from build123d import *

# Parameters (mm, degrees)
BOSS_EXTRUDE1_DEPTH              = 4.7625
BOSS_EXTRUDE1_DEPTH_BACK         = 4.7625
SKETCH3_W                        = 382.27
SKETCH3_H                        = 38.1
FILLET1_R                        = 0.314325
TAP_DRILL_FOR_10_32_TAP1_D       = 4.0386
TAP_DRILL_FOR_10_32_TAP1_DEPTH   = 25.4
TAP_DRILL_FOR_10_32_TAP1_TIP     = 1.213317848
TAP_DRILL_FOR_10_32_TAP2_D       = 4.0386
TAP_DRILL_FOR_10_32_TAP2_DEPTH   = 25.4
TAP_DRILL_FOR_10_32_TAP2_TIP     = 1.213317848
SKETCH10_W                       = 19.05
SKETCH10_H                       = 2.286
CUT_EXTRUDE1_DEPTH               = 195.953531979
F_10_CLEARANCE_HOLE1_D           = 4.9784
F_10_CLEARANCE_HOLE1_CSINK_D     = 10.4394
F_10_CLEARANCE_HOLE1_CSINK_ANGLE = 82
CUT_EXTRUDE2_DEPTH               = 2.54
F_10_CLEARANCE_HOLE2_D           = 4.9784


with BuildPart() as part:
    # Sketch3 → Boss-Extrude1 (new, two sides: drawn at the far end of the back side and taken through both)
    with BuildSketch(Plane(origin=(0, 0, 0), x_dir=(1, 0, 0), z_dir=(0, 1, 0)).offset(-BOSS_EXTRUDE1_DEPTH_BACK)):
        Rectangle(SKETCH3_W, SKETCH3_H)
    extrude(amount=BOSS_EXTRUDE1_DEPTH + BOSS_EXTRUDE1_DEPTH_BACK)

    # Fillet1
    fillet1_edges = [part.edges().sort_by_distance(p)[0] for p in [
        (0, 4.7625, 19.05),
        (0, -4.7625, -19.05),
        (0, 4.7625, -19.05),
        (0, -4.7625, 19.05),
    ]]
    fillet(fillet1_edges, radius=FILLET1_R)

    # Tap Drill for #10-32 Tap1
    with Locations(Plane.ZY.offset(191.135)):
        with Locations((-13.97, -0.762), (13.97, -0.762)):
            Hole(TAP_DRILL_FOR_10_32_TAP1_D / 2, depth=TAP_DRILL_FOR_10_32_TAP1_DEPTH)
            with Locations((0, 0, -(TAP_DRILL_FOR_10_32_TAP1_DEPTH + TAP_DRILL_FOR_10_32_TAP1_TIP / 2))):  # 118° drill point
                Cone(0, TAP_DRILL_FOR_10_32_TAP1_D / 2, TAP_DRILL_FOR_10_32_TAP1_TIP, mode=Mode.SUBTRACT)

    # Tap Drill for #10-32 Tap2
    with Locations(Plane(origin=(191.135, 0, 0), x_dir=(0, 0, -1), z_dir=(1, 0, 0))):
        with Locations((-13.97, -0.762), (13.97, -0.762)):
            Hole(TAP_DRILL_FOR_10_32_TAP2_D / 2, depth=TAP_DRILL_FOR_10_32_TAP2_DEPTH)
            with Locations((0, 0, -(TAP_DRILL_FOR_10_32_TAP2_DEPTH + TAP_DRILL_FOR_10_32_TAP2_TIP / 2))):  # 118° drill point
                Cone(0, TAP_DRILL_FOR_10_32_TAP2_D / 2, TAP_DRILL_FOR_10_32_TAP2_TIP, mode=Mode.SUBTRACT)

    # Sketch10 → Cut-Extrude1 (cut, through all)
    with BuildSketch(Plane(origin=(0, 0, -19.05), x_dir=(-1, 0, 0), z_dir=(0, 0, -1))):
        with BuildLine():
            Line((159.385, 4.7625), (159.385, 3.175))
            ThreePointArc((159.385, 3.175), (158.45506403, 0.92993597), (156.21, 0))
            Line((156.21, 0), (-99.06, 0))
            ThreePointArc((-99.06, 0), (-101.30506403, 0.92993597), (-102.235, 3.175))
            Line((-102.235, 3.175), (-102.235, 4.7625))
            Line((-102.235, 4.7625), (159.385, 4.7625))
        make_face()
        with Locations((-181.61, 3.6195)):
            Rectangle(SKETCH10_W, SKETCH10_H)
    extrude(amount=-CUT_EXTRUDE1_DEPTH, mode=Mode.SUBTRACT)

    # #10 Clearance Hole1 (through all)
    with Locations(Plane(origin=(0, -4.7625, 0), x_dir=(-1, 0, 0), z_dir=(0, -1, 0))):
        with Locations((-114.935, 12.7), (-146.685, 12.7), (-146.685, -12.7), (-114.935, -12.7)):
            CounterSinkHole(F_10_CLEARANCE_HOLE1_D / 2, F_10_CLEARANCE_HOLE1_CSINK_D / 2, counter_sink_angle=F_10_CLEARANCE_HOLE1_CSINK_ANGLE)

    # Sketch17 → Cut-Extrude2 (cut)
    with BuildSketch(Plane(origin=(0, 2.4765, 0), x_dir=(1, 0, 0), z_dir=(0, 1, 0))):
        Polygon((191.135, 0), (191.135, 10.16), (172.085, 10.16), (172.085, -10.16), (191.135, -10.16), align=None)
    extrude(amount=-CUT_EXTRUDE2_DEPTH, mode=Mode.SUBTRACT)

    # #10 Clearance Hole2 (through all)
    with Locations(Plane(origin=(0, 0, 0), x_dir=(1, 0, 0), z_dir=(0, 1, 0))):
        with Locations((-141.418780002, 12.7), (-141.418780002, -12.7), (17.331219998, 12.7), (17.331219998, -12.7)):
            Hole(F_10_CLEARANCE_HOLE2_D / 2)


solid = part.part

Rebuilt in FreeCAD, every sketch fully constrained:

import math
import FreeCAD as App
import Part
import Sketcher

V = App.Vector
Q = App.Units.Quantity


def edges_at(feature, points):
    """Names of the edges that pass closest to the given points."""
    edges = feature.Shape.Edges
    near = lambda p: min(range(len(edges)), key=lambda i: edges[i].distToShape(Part.Vertex(*p))[0])
    return sorted({f"Edge{near(p) + 1}" for p in points})

doc = App.newDocument("Part")
body = doc.addObject("PartDesign::Body", "Body")

# Sketch on XZ plane
sketch1 = body.newObject("Sketcher::SketchObject", "Sketch")
sketch1.AttachmentSupport = (doc.getObject("XZ_Plane"), [""])
sketch1.MapMode = "FlatFace"
sketch1.addGeometry([
    Part.LineSegment(V(-191, -19, 0), V(-191, 19, 0)),
    Part.LineSegment(V(-191, 19, 0), V(191, 19, 0)),
    Part.LineSegment(V(191, 19, 0), V(191, -19, 0)),
    Part.LineSegment(V(191, -19, 0), V(-191, -19, 0)),
], False)
sketch1.addConstraint([
    Sketcher.Constraint("Coincident", 0, 2, 1, 1),
    Sketcher.Constraint("Coincident", 1, 2, 2, 1),
    Sketcher.Constraint("Coincident", 2, 2, 3, 1),
    Sketcher.Constraint("Coincident", 3, 2, 0, 1),
    Sketcher.Constraint("Vertical", 0),
    Sketcher.Constraint("Horizontal", 1),
    Sketcher.Constraint("Vertical", 2),
    Sketcher.Constraint("Horizontal", 3),
    Sketcher.Constraint("Symmetric", 0, 2, 2, 2, -1, 1),
    Sketcher.Constraint("DistanceY", 0, 1, 0, 2, Q("1.5 in")),
    Sketcher.Constraint("DistanceX", 1, 1, 1, 2, Q("15.05 in")),
])
pad1 = body.newObject("PartDesign::Pad", "Pad")
pad1.Profile = sketch1
pad1.Type = "TwoLengths"
pad1.Length = Q("0.1875 in")
pad1.Length2 = Q("0.1875 in")
pad1.Reversed = True
doc.recompute()

fillet = body.newObject("PartDesign::Fillet", "Fillet")
fillet.Base = (pad1, edges_at(pad1, [
    (0, 4.763, 19.05),
    (0, -4.763, -19.05),
    (0, 4.763, -19.05),
    (0, -4.763, 19.05),
]))
fillet.Radius = 0.314325

# Sketch on YZ plane
sketch2 = body.newObject("Sketcher::SketchObject", "Sketch001")
sketch2.AttachmentSupport = (doc.getObject("YZ_Plane"), [""])
sketch2.MapMode = "FlatFace"
sketch2.AttachmentOffset = App.Placement(V(0, 0, -7.525 * 25.4), App.Rotation())
sketch2.addGeometry([
    Part.Circle(V(-0.8, -14, 0), V(0, 0, 1), 2),
    Part.Circle(V(-0.8, 14, 0), V(0, 0, 1), 2),
], False)
sketch2.addConstraint([
    Sketcher.Constraint("Equal", 0, 1),
    Sketcher.Constraint("Symmetric", 0, 3, 1, 3, -1),
    Sketcher.Constraint("Diameter", 0, Q("0.159 in")),
    Sketcher.Constraint("DistanceY", 0, 3, 1, 3, Q("1.1 in")),
    Sketcher.Constraint("DistanceX", 0, 3, -1, 1, Q("0.03 in")),
])
doc.recompute()
hole = body.newObject("PartDesign::Hole", "Hole")
hole.Profile = sketch2
hole.ThreadType = "None"
hole.Diameter = Q("0.159 in")
hole.DepthType = "Dimension"
hole.Depth = Q("1 in")
hole.DrillPoint = "Angled"
hole.DrillPointAngle = 118
hole.Reversed = True

# Sketch on YZ plane
sketch3 = body.newObject("Sketcher::SketchObject", "Sketch002")
sketch3.AttachmentSupport = (doc.getObject("YZ_Plane"), [""])
sketch3.MapMode = "FlatFace"
sketch3.AttachmentOffset = App.Placement(V(0, 0, 7.525 * 25.4), App.Rotation())
sketch3.addGeometry([
    Part.Circle(V(-0.8, 14, 0), V(0, 0, 1), 2),
    Part.Circle(V(-0.8, -14, 0), V(0, 0, 1), 2),
], False)
sketch3.addConstraint([
    Sketcher.Constraint("Equal", 0, 1),
    Sketcher.Constraint("Symmetric", 0, 3, 1, 3, -1),
    Sketcher.Constraint("Diameter", 0, Q("0.159 in")),
    Sketcher.Constraint("DistanceY", 1, 3, 0, 3, Q("1.1 in")),
    Sketcher.Constraint("DistanceX", 0, 3, -1, 1, Q("0.03 in")),
])
doc.recompute()
hole2 = body.newObject("PartDesign::Hole", "Hole001")
hole2.Profile = sketch3
hole2.ThreadType = "None"
hole2.Diameter = Q("0.159 in")
hole2.DepthType = "Dimension"
hole2.Depth = Q("1 in")
hole2.DrillPoint = "Angled"
hole2.DrillPointAngle = 118

# Sketch on XY plane
sketch4 = body.newObject("Sketcher::SketchObject", "Sketch003")
sketch4.AttachmentSupport = (doc.getObject("XY_Plane"), [""])
sketch4.MapMode = "FlatFace"
sketch4.AttachmentOffset = App.Placement(V(0, 0, -0.75 * 25.4), App.Rotation())
sketch4.addGeometry([
    Part.LineSegment(V(-159.4, 3.2, 0), V(-159.4, 4.8, 0)),  # 0
    Part.LineSegment(V(-159.4, 4.8, 0), V(102.2, 4.8, 0)),  # 1
    Part.LineSegment(V(102.2, 4.8, 0), V(102.2, 3.2, 0)),  # 2
    Part.ArcOfCircle(Part.Circle(V(99.1, 3.2, 0), V(0, 0, 1), 3.2), math.radians(-90), math.radians(0)),  # 3
    Part.LineSegment(V(99.1, 0, 0), V(-156.2, 0, 0)),  # 4
    Part.ArcOfCircle(Part.Circle(V(-156.2, 3.2, 0), V(0, 0, 1), 3.2), math.radians(-180), math.radians(-90)),  # 5
    Part.LineSegment(V(191.1, 4.8, 0), V(191.1, 2.5, 0)),  # 6
    Part.LineSegment(V(191.1, 2.5, 0), V(172.1, 2.5, 0)),  # 7
    Part.LineSegment(V(172.1, 2.5, 0), V(172.1, 4.8, 0)),  # 8
    Part.LineSegment(V(172.1, 4.8, 0), V(191.1, 4.8, 0)),  # 9
], False)
sketch4.addConstraint([
    Sketcher.Constraint("Coincident", 0, 2, 1, 1),
    Sketcher.Constraint("Coincident", 1, 2, 2, 1),
    Sketcher.Constraint("Tangent", 2, 2, 3, 2),
    Sketcher.Constraint("Tangent", 3, 1, 4, 1),
    Sketcher.Constraint("Tangent", 4, 2, 5, 2),
    Sketcher.Constraint("Tangent", 5, 1, 0, 1),
    Sketcher.Constraint("Coincident", 6, 2, 7, 1),
    Sketcher.Constraint("Coincident", 7, 2, 8, 1),
    Sketcher.Constraint("Coincident", 8, 2, 9, 1),
    Sketcher.Constraint("Coincident", 9, 2, 6, 1),
    Sketcher.Constraint("Vertical", 0),
    Sketcher.Constraint("Horizontal", 1),
    Sketcher.Constraint("Vertical", 2),
    Sketcher.Constraint("Horizontal", 4),
    Sketcher.Constraint("Vertical", 6),
    Sketcher.Constraint("Horizontal", 7),
    Sketcher.Constraint("Vertical", 8),
    Sketcher.Constraint("Horizontal", 9),
    Sketcher.Constraint("Equal", 3, 5),
    Sketcher.Constraint("PointOnObject", 3, 1, -1),
    Sketcher.Constraint("Horizontal", 1, 2, 8, 2),
    Sketcher.Constraint("DistanceX", 1, 1, 1, 2, Q("10.3 in")),
    Sketcher.Constraint("Radius", 3, Q("0.125 in")),
    Sketcher.Constraint("DistanceX", 7, 2, 7, 1, Q("0.75 in")),
    Sketcher.Constraint("DistanceY", 6, 2, 6, 1, Q("0.09 in")),
    Sketcher.Constraint("DistanceX", -1, 1, 3, 3, Q("3.9 in")),
    Sketcher.Constraint("DistanceX", 2, 2, 6, 2, Q("3.5 in")),
    Sketcher.Constraint("DistanceY", 0, 1, 0, 2, Q("0.0625 in")),
])
pocket1 = body.newObject("PartDesign::Pocket", "Pocket")
pocket1.Profile = sketch4
pocket1.Type = "ThroughAll"
pocket1.Reversed = True

# Sketch on XZ plane
sketch5 = body.newObject("Sketcher::SketchObject", "Sketch004")
sketch5.AttachmentSupport = (doc.getObject("XZ_Plane"), [""])
sketch5.MapMode = "FlatFace"
sketch5.AttachmentOffset = App.Placement(V(0, 0, 0.1875 * 25.4), App.Rotation())
sketch5.addGeometry([
    Part.Circle(V(114.9, -12.7, 0), V(0, 0, 1), 2.5),
    Part.Circle(V(146.7, -12.7, 0), V(0, 0, 1), 2.5),
    Part.Circle(V(146.7, 12.7, 0), V(0, 0, 1), 2.5),
    Part.Circle(V(114.9, 12.7, 0), V(0, 0, 1), 2.5),
], False)
sketch5.addConstraint([
    Sketcher.Constraint("Equal", 0, 1),
    Sketcher.Constraint("Equal", 1, 2),
    Sketcher.Constraint("Equal", 2, 3),
    Sketcher.Constraint("Symmetric", 1, 3, 2, 3, -1),
    Sketcher.Constraint("Symmetric", 0, 3, 3, 3, -1),
    Sketcher.Constraint("Horizontal", 0, 3, 1, 3),
    Sketcher.Constraint("Diameter", 0, Q("0.196 in")),
    Sketcher.Constraint("DistanceY", 1, 3, 2, 3, Q("1 in")),
    Sketcher.Constraint("DistanceX", 0, 3, 1, 3, Q("1.25 in")),
    Sketcher.Constraint("DistanceX", -1, 1, 0, 3, Q("4.525 in")),
])
doc.recompute()
hole3 = body.newObject("PartDesign::Hole", "Hole002")
hole3.Profile = sketch5
hole3.ThreadType = "None"
hole3.Diameter = Q("0.196 in")
hole3.DepthType = "ThroughAll"
hole3.HoleCutType = "Countersink"
hole3.HoleCutDiameter = Q("0.411 in")
hole3.HoleCutCountersinkAngle = 82

# Sketch on XZ plane
sketch6 = body.newObject("Sketcher::SketchObject", "Sketch005")
sketch6.AttachmentSupport = (doc.getObject("XZ_Plane"), [""])
sketch6.MapMode = "FlatFace"
sketch6.AttachmentOffset = App.Placement(V(0, 0, -0.0975 * 25.4), App.Rotation())
sketch6.addGeometry([
    Part.LineSegment(V(191, -10, 0), V(172, -10, 0)),
    Part.LineSegment(V(172, -10, 0), V(172, 10, 0)),
    Part.LineSegment(V(172, 10, 0), V(191, 10, 0)),
    Part.LineSegment(V(191, 10, 0), V(191, -10, 0)),
], False)
sketch6.addConstraint([
    Sketcher.Constraint("Coincident", 0, 2, 1, 1),
    Sketcher.Constraint("Coincident", 1, 2, 2, 1),
    Sketcher.Constraint("Coincident", 2, 2, 3, 1),
    Sketcher.Constraint("Coincident", 3, 2, 0, 1),
    Sketcher.Constraint("Horizontal", 0),
    Sketcher.Constraint("Vertical", 1),
    Sketcher.Constraint("Horizontal", 2),
    Sketcher.Constraint("Vertical", 3),
    Sketcher.Constraint("DistanceY", 1, 1, 1, 2, Q("0.8 in")),
    Sketcher.Constraint("DistanceX", 0, 2, 0, 1, Q("0.75 in")),
    Sketcher.Constraint("DistanceY", 0, 2, -1, 1, Q("0.4 in")),
    Sketcher.Constraint("DistanceX", -1, 1, 0, 2, Q("6.775 in")),
])
pocket2 = body.newObject("PartDesign::Pocket", "Pocket001")
pocket2.Profile = sketch6
pocket2.Length = Q("0.1 in")
pocket2.Reversed = True

# Sketch on XZ plane
sketch7 = body.newObject("Sketcher::SketchObject", "Sketch006")
sketch7.AttachmentSupport = (doc.getObject("XZ_Plane"), [""])
sketch7.MapMode = "FlatFace"
sketch7.addGeometry([
    Part.Circle(V(-141.4, -12.7, 0), V(0, 0, 1), 2.5),
    Part.Circle(V(-141.4, 12.7, 0), V(0, 0, 1), 2.5),
    Part.Circle(V(17.3, -12.7, 0), V(0, 0, 1), 2.5),
    Part.Circle(V(17.3, 12.7, 0), V(0, 0, 1), 2.5),
], False)
sketch7.addConstraint([
    Sketcher.Constraint("Equal", 0, 1),
    Sketcher.Constraint("Equal", 1, 2),
    Sketcher.Constraint("Equal", 2, 3),
    Sketcher.Constraint("Symmetric", 0, 3, 1, 3, -1),
    Sketcher.Constraint("Symmetric", 2, 3, 3, 3, -1),
    Sketcher.Constraint("Horizontal", 0, 3, 2, 3),
    Sketcher.Constraint("Diameter", 0, Q("0.196 in")),
    Sketcher.Constraint("DistanceY", 0, 3, 1, 3, Q("1 in")),
    Sketcher.Constraint("DistanceX", 0, 3, 2, 3, Q("6.25 in")),
    Sketcher.Constraint("DistanceX", 0, 3, -1, 1, Q("141.41878 mm")),
])
doc.recompute()
hole4 = body.newObject("PartDesign::Hole", "Hole003")
hole4.Profile = sketch7
hole4.ThreadType = "None"
hole4.Diameter = Q("0.196 in")
hole4.DepthType = "ThroughAll"
hole4.Reversed = True

doc.recompute()
